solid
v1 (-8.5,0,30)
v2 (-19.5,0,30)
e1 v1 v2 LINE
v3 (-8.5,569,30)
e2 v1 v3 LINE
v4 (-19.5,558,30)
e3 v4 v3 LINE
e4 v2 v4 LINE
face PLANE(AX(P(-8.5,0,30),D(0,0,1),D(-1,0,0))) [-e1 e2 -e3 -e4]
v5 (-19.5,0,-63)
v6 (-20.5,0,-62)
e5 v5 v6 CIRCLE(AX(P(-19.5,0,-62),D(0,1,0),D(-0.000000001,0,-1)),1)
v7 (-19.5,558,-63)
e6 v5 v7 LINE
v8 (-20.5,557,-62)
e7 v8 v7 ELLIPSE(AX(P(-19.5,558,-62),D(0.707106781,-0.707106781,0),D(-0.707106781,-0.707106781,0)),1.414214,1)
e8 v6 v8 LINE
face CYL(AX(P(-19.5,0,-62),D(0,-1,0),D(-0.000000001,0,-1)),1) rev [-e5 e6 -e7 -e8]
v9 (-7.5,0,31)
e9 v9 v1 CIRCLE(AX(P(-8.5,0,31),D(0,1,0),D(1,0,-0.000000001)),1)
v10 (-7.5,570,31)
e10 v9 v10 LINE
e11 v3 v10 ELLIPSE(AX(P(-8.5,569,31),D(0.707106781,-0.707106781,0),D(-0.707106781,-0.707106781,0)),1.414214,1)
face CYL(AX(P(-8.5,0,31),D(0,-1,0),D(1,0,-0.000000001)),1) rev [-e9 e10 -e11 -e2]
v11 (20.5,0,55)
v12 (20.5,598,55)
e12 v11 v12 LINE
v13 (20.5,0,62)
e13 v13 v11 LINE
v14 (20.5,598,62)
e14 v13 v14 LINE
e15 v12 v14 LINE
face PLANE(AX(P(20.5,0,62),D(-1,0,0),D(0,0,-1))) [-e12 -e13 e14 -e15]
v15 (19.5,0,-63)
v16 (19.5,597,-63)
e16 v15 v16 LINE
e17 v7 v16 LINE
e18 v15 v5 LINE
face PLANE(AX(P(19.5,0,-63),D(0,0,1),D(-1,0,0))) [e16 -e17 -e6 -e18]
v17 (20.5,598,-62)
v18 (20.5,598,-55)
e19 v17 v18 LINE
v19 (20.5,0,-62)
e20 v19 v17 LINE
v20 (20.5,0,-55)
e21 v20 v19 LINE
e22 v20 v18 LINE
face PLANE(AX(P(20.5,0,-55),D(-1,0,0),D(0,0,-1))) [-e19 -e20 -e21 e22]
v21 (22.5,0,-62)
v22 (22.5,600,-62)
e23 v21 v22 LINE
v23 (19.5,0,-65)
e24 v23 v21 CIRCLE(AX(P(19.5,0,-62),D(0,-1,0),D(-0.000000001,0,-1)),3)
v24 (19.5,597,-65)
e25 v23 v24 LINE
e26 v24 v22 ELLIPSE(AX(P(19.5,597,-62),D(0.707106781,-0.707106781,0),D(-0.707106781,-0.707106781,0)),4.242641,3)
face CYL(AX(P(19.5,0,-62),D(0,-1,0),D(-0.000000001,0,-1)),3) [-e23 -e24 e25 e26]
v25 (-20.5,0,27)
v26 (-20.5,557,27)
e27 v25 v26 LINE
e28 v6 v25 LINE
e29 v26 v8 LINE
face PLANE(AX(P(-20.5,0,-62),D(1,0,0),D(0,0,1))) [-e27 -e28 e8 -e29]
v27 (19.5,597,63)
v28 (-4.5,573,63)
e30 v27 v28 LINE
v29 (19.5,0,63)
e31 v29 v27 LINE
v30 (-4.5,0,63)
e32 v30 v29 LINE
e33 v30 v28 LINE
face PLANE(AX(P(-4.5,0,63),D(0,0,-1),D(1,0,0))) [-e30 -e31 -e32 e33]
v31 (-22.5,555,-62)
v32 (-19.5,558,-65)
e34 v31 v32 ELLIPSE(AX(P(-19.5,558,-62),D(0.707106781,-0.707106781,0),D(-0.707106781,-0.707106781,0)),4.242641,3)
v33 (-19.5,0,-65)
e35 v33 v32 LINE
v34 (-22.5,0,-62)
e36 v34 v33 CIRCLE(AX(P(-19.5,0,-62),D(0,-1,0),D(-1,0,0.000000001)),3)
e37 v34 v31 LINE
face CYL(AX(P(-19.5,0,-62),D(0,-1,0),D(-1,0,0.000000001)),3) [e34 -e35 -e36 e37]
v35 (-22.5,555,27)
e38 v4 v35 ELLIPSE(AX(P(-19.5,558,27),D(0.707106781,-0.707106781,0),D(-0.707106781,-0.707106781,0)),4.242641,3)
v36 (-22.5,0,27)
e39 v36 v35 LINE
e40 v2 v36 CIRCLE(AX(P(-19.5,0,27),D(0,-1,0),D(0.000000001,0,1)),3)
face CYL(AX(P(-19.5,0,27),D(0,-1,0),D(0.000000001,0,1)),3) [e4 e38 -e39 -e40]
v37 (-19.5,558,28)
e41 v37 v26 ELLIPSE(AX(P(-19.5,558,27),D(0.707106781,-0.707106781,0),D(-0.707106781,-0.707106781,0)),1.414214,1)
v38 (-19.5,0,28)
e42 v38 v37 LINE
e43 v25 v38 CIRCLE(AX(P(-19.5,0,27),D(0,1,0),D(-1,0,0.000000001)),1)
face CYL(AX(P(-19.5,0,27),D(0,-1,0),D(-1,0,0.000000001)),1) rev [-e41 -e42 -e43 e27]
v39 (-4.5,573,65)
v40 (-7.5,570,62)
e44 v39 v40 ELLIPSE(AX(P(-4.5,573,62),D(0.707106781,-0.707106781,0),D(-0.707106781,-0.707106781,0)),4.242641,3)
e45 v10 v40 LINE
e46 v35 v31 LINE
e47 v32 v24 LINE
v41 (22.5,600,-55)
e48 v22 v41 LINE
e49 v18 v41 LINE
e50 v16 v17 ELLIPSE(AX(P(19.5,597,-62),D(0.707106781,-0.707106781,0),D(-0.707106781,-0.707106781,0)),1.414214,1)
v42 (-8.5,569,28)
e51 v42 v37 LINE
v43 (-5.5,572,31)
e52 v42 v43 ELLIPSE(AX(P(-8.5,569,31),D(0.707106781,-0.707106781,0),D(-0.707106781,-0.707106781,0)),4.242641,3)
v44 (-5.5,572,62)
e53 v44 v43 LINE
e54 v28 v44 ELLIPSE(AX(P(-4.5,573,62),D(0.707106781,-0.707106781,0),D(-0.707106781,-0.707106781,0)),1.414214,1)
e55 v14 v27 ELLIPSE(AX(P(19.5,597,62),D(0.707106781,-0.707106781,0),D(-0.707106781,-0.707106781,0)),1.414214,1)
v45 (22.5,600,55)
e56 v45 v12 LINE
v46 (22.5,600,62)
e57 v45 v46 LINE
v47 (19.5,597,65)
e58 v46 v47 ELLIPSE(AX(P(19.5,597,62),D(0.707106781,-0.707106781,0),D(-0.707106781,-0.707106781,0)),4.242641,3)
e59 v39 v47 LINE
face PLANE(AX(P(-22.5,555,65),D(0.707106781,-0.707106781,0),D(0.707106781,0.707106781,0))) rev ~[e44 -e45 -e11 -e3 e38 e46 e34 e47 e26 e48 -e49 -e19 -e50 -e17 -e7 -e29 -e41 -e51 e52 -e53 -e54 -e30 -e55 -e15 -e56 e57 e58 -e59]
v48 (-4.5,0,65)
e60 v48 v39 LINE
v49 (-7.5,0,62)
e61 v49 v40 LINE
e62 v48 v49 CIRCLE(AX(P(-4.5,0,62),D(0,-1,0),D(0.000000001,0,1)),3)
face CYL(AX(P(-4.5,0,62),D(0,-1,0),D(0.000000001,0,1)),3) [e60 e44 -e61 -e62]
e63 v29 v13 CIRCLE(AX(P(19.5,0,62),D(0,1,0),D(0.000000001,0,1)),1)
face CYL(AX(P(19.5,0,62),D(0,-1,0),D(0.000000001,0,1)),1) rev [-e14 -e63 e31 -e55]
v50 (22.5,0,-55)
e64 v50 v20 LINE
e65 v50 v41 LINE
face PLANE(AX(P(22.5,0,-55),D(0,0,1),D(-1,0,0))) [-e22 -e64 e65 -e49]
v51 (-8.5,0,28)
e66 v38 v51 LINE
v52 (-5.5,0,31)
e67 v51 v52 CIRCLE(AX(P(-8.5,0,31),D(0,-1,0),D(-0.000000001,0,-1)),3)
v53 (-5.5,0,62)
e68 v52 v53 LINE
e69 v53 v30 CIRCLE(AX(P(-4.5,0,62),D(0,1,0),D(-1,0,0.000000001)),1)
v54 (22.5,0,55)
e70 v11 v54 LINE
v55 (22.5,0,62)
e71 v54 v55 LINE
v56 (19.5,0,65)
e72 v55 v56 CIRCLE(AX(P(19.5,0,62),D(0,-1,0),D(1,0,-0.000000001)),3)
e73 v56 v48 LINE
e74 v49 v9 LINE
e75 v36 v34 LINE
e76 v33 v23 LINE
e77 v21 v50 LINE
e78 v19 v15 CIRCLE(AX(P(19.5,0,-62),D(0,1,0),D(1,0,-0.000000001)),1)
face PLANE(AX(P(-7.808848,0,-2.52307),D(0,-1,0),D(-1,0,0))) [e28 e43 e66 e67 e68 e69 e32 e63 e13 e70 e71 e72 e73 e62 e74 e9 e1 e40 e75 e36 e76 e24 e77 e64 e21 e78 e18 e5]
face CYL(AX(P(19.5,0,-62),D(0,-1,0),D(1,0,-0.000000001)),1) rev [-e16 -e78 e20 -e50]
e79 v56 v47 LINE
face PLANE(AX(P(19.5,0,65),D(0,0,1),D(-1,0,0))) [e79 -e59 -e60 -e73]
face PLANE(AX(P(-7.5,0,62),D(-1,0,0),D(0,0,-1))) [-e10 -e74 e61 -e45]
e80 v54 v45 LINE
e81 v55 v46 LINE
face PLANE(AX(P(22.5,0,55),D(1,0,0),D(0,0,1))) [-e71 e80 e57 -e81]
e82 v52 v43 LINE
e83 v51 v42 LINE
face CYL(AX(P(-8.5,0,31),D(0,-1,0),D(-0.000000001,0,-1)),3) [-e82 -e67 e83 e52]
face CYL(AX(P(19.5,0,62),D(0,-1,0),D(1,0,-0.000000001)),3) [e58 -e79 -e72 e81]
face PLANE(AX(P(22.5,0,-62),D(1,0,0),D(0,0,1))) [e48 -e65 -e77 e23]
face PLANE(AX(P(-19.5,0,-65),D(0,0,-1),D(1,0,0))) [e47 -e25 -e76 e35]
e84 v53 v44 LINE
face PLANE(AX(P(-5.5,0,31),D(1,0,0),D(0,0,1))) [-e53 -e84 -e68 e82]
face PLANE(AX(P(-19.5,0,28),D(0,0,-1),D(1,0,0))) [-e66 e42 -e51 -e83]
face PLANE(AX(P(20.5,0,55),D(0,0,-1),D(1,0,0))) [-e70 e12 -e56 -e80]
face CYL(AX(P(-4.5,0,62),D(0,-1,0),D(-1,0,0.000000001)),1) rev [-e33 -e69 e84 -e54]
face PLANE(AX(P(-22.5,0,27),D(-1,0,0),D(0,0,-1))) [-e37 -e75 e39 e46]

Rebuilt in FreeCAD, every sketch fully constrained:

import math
import FreeCAD as App
import Part
import Sketcher
from FreeCAD import Vector

doc = App.newDocument("Part")
body = doc.addObject("PartDesign::Body", "Body")

# Sketch on XZ plane
sketch1 = doc.addObject("Sketcher::SketchObject", "Sketch")
body.addObject(sketch1)
sketch1.AttachmentSupport = (doc.XZ_Plane, [""])
sketch1.MapMode = "FlatFace"
sketch1.addGeometry([
    Part.LineSegment(Vector(22.5, 62, 0), Vector(22.5, 55, 0)),  # 0
    Part.LineSegment(Vector(22.5, 55, 0), Vector(20.5, 55, 0)),  # 1
    Part.LineSegment(Vector(20.5, 55, 0), Vector(20.5, 62, 0)),  # 2
    Part.ArcOfCircle(Part.Circle(Vector(19.5, 62, 0), Vector(0, 0, 1), 1), math.radians(0), math.radians(90)),  # 3
    Part.LineSegment(Vector(19.5, 63, 0), Vector(-4.5, 63, 0)),  # 4
    Part.ArcOfCircle(Part.Circle(Vector(-4.5, 62, 0), Vector(0, 0, 1), 1), math.radians(90), math.radians(180)),  # 5
    Part.LineSegment(Vector(-5.5, 62, 0), Vector(-5.5, 31, 0)),  # 6
    Part.ArcOfCircle(Part.Circle(Vector(-8.5, 31, 0), Vector(0, 0, 1), 3), math.radians(-90), math.radians(0)),  # 7
    Part.LineSegment(Vector(-8.5, 28, 0), Vector(-19.5, 28, 0)),  # 8
    Part.ArcOfCircle(Part.Circle(Vector(-19.5, 27, 0), Vector(0, 0, 1), 1), math.radians(90), math.radians(180)),  # 9
    Part.LineSegment(Vector(-20.5, 27, 0), Vector(-20.5, -62, 0)),  # 10
    Part.ArcOfCircle(Part.Circle(Vector(-19.5, -62, 0), Vector(0, 0, 1), 1), math.radians(-180), math.radians(-90)),  # 11
    Part.LineSegment(Vector(-19.5, -63, 0), Vector(19.5, -63, 0)),  # 12
    Part.ArcOfCircle(Part.Circle(Vector(19.5, -62, 0), Vector(0, 0, 1), 1), math.radians(-90), math.radians(0)),  # 13
    Part.LineSegment(Vector(20.5, -62, 0), Vector(20.5, -55, 0)),  # 14
    Part.LineSegment(Vector(20.5, -55, 0), Vector(22.5, -55, 0)),  # 15
    Part.LineSegment(Vector(22.5, -55, 0), Vector(22.5, -62, 0)),  # 16
    Part.ArcOfCircle(Part.Circle(Vector(19.5, -62, 0), Vector(0, 0, 1), 3), math.radians(-90), math.radians(0)),  # 17
    Part.LineSegment(Vector(19.5, -65, 0), Vector(-19.5, -65, 0)),  # 18
    Part.ArcOfCircle(Part.Circle(Vector(-19.5, -62, 0), Vector(0, 0, 1), 3), math.radians(180), math.radians(270)),  # 19
    Part.LineSegment(Vector(-22.5, -62, 0), Vector(-22.5, 27, 0)),  # 20
    Part.ArcOfCircle(Part.Circle(Vector(-19.5, 27, 0), Vector(0, 0, 1), 3), math.radians(90), math.radians(180)),  # 21
    Part.LineSegment(Vector(-19.5, 30, 0), Vector(-8.5, 30, 0)),  # 22
    Part.ArcOfCircle(Part.Circle(Vector(-8.5, 31, 0), Vector(0, 0, 1), 1), math.radians(-90), math.radians(0)),  # 23
    Part.LineSegment(Vector(-7.5, 31, 0), Vector(-7.5, 62, 0)),  # 24
    Part.ArcOfCircle(Part.Circle(Vector(-4.5, 62, 0), Vector(0, 0, 1), 3), math.radians(90), math.radians(180)),  # 25
    Part.LineSegment(Vector(-4.5, 65, 0), Vector(19.5, 65, 0)),  # 26
    Part.ArcOfCircle(Part.Circle(Vector(19.5, 62, 0), Vector(0, 0, 1), 3), math.radians(0), math.radians(90)),  # 27
], False)
sketch1.addConstraint([
    Sketcher.Constraint("Coincident", 0, 2, 1, 1),
    Sketcher.Constraint("Coincident", 1, 2, 2, 1),
    Sketcher.Constraint("Tangent", 2, 2, 3, 1),
    Sketcher.Constraint("Tangent", 3, 2, 4, 1),
    Sketcher.Constraint("Tangent", 4, 2, 5, 1),
    Sketcher.Constraint("Tangent", 5, 2, 6, 1),
    Sketcher.Constraint("Tangent", 6, 2, 7, 2),
    Sketcher.Constraint("Tangent", 7, 1, 8, 1),
    Sketcher.Constraint("Tangent", 8, 2, 9, 1),
    Sketcher.Constraint("Tangent", 9, 2, 10, 1),
    Sketcher.Constraint("Tangent", 10, 2, 11, 1),
    Sketcher.Constraint("Tangent", 11, 2, 12, 1),
    Sketcher.Constraint("Tangent", 12, 2, 13, 1),
    Sketcher.Constraint("Tangent", 13, 2, 14, 1),
    Sketcher.Constraint("Coincident", 14, 2, 15, 1),
    Sketcher.Constraint("Coincident", 15, 2, 16, 1),
    Sketcher.Constraint("Tangent", 16, 2, 17, 2),
    Sketcher.Constraint("Tangent", 17, 1, 18, 1),
    Sketcher.Constraint("Tangent", 18, 2, 19, 2),
    Sketcher.Constraint("Tangent", 19, 1, 20, 1),
    Sketcher.Constraint("Tangent", 20, 2, 21, 2),
    Sketcher.Constraint("Tangent", 21, 1, 22, 1),
    Sketcher.Constraint("Tangent", 22, 2, 23, 1),
    Sketcher.Constraint("Tangent", 23, 2, 24, 1),
    Sketcher.Constraint("Tangent", 24, 2, 25, 2),
    Sketcher.Constraint("Tangent", 25, 1, 26, 1),
    Sketcher.Constraint("Tangent", 26, 2, 27, 2),
    Sketcher.Constraint("Tangent", 27, 1, 0, 1),
    Sketcher.Constraint("Vertical", 0),
    Sketcher.Constraint("Horizontal", 1),
    Sketcher.Constraint("Vertical", 2),
    Sketcher.Constraint("Horizontal", 4),
    Sketcher.Constraint("Vertical", 6),
    Sketcher.Constraint("Horizontal", 8),
    Sketcher.Constraint("Vertical", 10),
    Sketcher.Constraint("Horizontal", 12),
    Sketcher.Constraint("Vertical", 14),
    Sketcher.Constraint("Horizontal", 15),
    Sketcher.Constraint("Vertical", 16),
    Sketcher.Constraint("Horizontal", 18),
    Sketcher.Constraint("Vertical", 20),
    Sketcher.Constraint("Horizontal", 22),
    Sketcher.Constraint("Vertical", 24),
    Sketcher.Constraint("Horizontal", 26),
    Sketcher.Constraint("Coincident", 17, 3, 13, 3),
    Sketcher.Constraint("Coincident", 19, 3, 11, 3),
    Sketcher.Constraint("Coincident", 21, 3, 9, 3),
    Sketcher.Constraint("Coincident", 23, 3, 7, 3),
    Sketcher.Constraint("Coincident", 25, 3, 5, 3),
    Sketcher.Constraint("Coincident", 27, 3, 3, 3),
    Sketcher.Constraint("Equal", 3, 5),
    Sketcher.Constraint("Equal", 5, 9),
    Sketcher.Constraint("Equal", 9, 11),
    Sketcher.Constraint("Equal", 11, 13),
    Sketcher.Constraint("Equal", 7, 17),
    Sketcher.Constraint("Symmetric", 3, 3, 11, 3, -1, 1),
    Sketcher.Constraint("Symmetric", 1, 2, 14, 2, -1),
    Sketcher.Constraint("Radius", 3, 1.0),
    Sketcher.Constraint("Radius", 7, 3.0),
    Sketcher.Constraint("DistanceX", 4, 2, 4, 1, 24.0),
    Sketcher.Constraint("DistanceX", 8, 2, 8, 1, 11.0),
    Sketcher.Constraint("DistanceY", 0, 2, 0, 1, 7.0),
    Sketcher.Constraint("DistanceY", 6, 2, 6, 1, 31.0),
    Sketcher.Constraint("DistanceY", 10, 2, 10, 1, 89.0),
])
pad1 = doc.addObject("PartDesign::Pad", "Pad")
body.addObject(pad1)
pad1.Profile = sketch1
pad1.Length = 600
pad1.Reversed = True

# Sketch on XY plane
sketch2 = doc.addObject("Sketcher::SketchObject", "Sketch001")
body.addObject(sketch2)
sketch2.AttachmentSupport = (doc.XY_Plane, [""])
sketch2.MapMode = "FlatFace"
sketch2.AttachmentOffset = App.Placement(Vector(0, 0, 65), App.Rotation())
sketch2.addGeometry([
    Part.LineSegment(Vector(22, 600, 0), Vector(-22, 600, 0)),
    Part.LineSegment(Vector(-22, 600, 0), Vector(-22, 555, 0)),
    Part.LineSegment(Vector(-22, 555, 0), Vector(22, 600, 0)),
], False)
sketch2.addConstraint([
    Sketcher.Constraint("Coincident", 0, 2, 1, 1),
    Sketcher.Constraint("Coincident", 1, 2, 2, 1),
    Sketcher.Constraint("Coincident", 2, 2, 0, 1),
    Sketcher.Constraint("Horizontal", 0),
    Sketcher.Constraint("Vertical", 1),
    Sketcher.Constraint("Equal", 0, 1),
    Sketcher.Constraint("DistanceX", 0, 2, 0, 1, 45.0),
    Sketcher.Constraint("DistanceY", -1, 1, 0, 2, 600.0),
    Sketcher.Constraint("DistanceX", 0, 2, -1, 1, 22.5),
])
pocket1 = doc.addObject("PartDesign::Pocket", "Pocket")
body.addObject(pocket1)
pocket1.Profile = sketch2
pocket1.Length = 130

doc.recompute()
